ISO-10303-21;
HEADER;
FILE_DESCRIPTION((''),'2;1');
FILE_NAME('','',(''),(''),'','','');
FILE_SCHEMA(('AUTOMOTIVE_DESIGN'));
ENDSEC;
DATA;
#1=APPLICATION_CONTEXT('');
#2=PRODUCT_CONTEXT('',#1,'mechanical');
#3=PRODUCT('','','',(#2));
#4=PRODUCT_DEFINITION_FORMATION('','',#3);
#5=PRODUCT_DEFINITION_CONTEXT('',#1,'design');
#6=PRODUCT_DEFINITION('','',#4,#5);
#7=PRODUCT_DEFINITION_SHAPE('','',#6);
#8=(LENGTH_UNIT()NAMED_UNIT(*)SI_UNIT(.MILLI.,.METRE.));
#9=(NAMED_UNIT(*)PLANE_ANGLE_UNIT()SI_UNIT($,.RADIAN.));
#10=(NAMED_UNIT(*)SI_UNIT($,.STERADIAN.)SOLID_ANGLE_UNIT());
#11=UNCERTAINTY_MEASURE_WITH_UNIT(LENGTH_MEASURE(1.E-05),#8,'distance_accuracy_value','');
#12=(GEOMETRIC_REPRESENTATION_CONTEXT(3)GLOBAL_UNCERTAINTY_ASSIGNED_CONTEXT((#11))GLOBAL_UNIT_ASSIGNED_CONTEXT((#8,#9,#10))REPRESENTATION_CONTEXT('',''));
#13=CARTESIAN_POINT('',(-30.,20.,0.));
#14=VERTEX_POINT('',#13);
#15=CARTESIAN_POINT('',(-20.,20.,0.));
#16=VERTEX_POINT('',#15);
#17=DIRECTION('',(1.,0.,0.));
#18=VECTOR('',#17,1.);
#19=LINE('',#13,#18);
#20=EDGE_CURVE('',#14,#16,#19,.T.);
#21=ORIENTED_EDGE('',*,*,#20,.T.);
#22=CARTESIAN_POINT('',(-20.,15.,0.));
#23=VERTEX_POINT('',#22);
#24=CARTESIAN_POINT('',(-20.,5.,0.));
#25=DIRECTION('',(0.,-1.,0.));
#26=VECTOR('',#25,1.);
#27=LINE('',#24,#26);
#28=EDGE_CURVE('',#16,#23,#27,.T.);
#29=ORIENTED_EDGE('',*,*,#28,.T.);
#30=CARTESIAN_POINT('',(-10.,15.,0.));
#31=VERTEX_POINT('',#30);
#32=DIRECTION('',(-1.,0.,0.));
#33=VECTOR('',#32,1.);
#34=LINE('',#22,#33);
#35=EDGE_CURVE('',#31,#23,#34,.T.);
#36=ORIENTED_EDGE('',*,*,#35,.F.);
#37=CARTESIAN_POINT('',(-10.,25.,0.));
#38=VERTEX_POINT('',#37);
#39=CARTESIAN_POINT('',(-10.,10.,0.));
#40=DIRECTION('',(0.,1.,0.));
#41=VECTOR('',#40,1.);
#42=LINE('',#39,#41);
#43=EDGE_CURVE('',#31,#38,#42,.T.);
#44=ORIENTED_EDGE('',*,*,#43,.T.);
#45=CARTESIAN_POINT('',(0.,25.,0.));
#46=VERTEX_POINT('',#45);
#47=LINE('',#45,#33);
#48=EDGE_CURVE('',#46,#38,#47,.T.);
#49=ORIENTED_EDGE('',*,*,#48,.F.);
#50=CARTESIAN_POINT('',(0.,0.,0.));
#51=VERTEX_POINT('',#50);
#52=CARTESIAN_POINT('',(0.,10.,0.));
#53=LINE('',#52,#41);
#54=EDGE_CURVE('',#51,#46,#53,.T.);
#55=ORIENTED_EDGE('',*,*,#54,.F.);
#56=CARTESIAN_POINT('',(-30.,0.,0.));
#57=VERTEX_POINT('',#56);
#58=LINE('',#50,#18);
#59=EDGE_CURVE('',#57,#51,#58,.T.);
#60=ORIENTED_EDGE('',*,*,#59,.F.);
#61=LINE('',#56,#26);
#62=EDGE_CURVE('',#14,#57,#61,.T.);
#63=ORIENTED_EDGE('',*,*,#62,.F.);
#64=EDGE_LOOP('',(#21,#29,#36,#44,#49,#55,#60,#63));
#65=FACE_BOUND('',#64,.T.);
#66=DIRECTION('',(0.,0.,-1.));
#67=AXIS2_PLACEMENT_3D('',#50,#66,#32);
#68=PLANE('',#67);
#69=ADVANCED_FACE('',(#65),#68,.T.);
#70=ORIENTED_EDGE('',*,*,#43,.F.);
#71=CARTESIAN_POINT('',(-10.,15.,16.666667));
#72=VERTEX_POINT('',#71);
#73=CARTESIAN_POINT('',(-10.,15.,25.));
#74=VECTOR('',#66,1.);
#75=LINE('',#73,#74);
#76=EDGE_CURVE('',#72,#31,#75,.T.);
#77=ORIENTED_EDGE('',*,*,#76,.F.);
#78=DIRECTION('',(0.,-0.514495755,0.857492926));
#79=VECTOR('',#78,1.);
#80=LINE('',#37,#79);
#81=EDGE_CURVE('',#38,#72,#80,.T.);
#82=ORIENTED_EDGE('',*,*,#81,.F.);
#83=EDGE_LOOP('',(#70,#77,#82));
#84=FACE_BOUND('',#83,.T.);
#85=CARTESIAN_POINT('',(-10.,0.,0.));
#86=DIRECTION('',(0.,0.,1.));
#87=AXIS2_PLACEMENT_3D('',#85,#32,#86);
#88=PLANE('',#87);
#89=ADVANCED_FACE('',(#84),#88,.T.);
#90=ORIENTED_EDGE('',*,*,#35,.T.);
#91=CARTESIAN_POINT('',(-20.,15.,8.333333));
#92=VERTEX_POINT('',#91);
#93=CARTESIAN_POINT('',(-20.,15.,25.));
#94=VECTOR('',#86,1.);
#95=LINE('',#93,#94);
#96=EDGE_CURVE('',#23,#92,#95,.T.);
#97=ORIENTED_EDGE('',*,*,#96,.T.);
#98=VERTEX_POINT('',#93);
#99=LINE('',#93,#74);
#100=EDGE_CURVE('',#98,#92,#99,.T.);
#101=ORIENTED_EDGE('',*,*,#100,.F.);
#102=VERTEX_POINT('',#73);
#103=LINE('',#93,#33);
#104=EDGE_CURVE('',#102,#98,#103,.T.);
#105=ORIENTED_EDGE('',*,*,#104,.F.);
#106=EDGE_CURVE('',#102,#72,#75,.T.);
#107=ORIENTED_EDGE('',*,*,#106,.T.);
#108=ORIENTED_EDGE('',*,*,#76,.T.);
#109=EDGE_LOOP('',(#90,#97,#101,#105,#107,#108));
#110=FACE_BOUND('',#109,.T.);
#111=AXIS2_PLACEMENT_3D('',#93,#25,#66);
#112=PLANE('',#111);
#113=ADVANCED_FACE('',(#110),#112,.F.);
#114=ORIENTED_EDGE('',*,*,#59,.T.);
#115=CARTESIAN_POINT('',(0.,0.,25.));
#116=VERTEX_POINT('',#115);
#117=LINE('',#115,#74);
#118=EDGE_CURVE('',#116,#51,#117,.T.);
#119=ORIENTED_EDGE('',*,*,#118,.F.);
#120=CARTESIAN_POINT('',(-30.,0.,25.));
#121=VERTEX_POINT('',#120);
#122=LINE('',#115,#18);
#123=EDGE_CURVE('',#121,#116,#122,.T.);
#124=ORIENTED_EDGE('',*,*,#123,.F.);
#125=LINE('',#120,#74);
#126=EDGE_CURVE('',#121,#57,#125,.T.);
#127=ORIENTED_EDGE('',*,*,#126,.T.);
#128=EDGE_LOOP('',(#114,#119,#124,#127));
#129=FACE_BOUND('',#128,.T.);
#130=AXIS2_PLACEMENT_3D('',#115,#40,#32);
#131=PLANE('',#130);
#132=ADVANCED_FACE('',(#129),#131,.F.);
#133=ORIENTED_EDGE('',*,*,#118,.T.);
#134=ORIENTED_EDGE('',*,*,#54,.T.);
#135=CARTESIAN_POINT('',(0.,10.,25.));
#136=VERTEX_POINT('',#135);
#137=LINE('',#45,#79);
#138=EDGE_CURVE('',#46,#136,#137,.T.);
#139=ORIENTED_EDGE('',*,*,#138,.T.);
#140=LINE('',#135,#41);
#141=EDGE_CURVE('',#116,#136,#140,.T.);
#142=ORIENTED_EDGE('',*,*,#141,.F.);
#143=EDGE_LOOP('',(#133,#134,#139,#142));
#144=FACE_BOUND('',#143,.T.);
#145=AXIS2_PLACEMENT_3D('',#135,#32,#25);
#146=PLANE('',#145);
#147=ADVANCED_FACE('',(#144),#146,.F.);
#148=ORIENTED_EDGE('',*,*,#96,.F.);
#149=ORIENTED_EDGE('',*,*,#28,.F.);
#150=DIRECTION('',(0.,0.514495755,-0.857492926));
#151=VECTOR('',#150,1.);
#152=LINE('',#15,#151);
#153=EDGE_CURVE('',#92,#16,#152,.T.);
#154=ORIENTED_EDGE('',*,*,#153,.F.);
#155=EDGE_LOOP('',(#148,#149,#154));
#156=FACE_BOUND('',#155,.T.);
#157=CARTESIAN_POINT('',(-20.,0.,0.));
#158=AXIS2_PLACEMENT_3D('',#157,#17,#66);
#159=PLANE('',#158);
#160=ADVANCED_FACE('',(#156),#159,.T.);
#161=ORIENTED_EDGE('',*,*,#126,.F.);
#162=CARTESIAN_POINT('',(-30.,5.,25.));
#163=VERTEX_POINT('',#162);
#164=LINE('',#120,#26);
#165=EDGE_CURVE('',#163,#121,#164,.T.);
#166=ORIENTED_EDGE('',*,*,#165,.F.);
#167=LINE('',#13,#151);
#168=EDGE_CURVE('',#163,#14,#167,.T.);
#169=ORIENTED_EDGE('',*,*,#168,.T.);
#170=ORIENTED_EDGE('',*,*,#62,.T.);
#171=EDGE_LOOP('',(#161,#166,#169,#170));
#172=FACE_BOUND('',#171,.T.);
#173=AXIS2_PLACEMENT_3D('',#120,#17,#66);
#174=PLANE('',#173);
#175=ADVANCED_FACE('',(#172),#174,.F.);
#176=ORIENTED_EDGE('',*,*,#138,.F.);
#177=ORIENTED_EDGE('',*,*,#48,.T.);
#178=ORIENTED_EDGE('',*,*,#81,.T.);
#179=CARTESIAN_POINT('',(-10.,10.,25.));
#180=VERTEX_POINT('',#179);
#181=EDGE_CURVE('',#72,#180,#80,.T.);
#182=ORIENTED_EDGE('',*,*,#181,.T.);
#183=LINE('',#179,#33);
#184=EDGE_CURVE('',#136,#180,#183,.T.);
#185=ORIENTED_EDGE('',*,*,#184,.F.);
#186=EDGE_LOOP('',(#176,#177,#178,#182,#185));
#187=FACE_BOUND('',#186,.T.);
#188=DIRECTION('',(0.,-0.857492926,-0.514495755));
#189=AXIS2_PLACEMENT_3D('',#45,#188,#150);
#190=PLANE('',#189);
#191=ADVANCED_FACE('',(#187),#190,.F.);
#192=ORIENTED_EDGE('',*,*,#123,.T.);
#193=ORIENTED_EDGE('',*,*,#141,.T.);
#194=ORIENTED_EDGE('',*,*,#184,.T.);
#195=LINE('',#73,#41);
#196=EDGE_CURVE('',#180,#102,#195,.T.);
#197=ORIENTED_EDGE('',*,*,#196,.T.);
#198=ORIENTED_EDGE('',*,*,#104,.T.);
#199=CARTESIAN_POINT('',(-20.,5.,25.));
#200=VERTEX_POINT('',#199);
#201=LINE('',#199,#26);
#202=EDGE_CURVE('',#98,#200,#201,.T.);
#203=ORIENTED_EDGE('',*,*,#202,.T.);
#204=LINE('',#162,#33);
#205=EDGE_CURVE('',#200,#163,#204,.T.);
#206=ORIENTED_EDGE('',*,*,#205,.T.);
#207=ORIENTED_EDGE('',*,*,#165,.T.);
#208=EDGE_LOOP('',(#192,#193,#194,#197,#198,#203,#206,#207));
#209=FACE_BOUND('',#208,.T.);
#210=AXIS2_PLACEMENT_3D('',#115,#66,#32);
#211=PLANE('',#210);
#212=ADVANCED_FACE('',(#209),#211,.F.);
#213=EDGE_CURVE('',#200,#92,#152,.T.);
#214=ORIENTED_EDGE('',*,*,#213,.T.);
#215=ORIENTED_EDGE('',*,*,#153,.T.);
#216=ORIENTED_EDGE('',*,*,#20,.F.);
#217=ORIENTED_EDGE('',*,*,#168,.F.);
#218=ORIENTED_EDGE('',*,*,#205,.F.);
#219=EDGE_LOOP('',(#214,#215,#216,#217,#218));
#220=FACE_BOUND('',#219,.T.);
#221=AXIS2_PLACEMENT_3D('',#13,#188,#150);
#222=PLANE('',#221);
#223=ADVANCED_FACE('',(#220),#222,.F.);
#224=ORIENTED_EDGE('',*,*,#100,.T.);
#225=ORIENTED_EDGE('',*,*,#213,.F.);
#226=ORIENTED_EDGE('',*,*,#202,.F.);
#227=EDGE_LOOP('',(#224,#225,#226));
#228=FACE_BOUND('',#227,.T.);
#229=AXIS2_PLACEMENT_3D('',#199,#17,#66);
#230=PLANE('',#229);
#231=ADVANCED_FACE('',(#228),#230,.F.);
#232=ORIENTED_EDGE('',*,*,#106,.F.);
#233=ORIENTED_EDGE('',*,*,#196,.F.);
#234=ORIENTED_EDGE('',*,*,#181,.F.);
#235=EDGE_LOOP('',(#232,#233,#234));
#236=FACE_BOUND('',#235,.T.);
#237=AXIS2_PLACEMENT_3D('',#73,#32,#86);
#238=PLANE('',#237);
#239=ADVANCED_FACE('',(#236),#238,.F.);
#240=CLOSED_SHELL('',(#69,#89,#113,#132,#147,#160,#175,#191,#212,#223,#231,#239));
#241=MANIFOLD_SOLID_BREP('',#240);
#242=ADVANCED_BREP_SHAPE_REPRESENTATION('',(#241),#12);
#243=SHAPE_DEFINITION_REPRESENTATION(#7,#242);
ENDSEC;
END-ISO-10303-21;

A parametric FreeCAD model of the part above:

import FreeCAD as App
import Part
import Sketcher
Q = App.Units.Quantity


def add_polygon(sketch, points):
    """Adds a closed chain of lines whose ends are joined by coincident constraints."""
    first, n = sketch.GeometryCount, len(points)
    for a, b in zip(points, points[1:] + points[:1]):
        sketch.addGeometry(Part.LineSegment(App.Vector(*a, 0), App.Vector(*b, 0)), False)
    for i in range(n):
        sketch.addConstraint(Sketcher.Constraint("Coincident", first + i, 2, first + (i + 1) % n, 1))

doc = App.newDocument("Part")
body = doc.addObject("PartDesign::Body", "Body")

# Sketch on XY plane
sketch1 = body.newObject("Sketcher::SketchObject", "Sketch")
sketch1.AttachmentSupport = (doc.getObject("XY_Plane"), [""])
sketch1.MapMode = "FlatFace"
add_polygon(sketch1, [(-20, 5), (-30, 5), (-30, 0), (0, 0), (0, 10), (-10, 10), (-10, 15), (-20, 15)])  # lines 0-7
sketch1.addConstraint([
    Sketcher.Constraint("Horizontal", 0),
    Sketcher.Constraint("Vertical", 1),
    Sketcher.Constraint("Horizontal", 2),
    Sketcher.Constraint("Vertical", 3),
    Sketcher.Constraint("Horizontal", 4),
    Sketcher.Constraint("Vertical", 5),
    Sketcher.Constraint("Horizontal", 6),
    Sketcher.Constraint("Vertical", 7),
    Sketcher.Constraint("Coincident", 2, 2, -1, 1),
    Sketcher.Constraint("Equal", 0, 4),
    Sketcher.Constraint("Equal", 4, 6),
    Sketcher.Constraint("Equal", 6, 3),
    Sketcher.Constraint("Equal", 1, 5),
    Sketcher.Constraint("DistanceX", 0, 2, 0, 1, Q("10 mm")),
    Sketcher.Constraint("DistanceY", 1, 2, 1, 1, Q("5 mm")),
])
pad1 = body.newObject("PartDesign::Pad", "Pad")
pad1.Profile = sketch1
pad1.Length = 25

# Sketch on YZ plane
sketch2 = body.newObject("Sketcher::SketchObject", "Sketch001")
sketch2.AttachmentSupport = (doc.getObject("YZ_Plane"), [""])
sketch2.MapMode = "FlatFace"
sketch2.AttachmentOffset = App.Placement(App.Vector(0, 0, -10), App.Rotation())
add_polygon(sketch2, [(10, 25), (10, 0), (25, 0)])  # lines 0-2
sketch2.addConstraint([
    Sketcher.Constraint("Vertical", 0),
    Sketcher.Constraint("Horizontal", 1),
    Sketcher.Constraint("PointOnObject", 0, 2, -1),
    Sketcher.Constraint("DistanceX", 1, 1, 1, 2, Q("15 mm")),
    Sketcher.Constraint("DistanceY", 0, 2, 0, 1, Q("25 mm")),
    Sketcher.Constraint("DistanceX", -1, 1, 0, 2, Q("10 mm")),
])
pad2 = body.newObject("PartDesign::Pad", "Pad001")
pad2.Profile = sketch2
pad2.Length = 10

# Sketch on YZ plane
sketch3 = body.newObject("Sketcher::SketchObject", "Sketch002")
sketch3.AttachmentSupport = (doc.getObject("YZ_Plane"), [""])
sketch3.MapMode = "FlatFace"
sketch3.AttachmentOffset = App.Placement(App.Vector(0, 0, -20), App.Rotation())
add_polygon(sketch3, [(20, 0), (5, 0), (5, 25)])  # lines 0-2
sketch3.addConstraint([
    Sketcher.Constraint("Horizontal", 0),
    Sketcher.Constraint("Vertical", 1),
    Sketcher.Constraint("PointOnObject", 0, 2, -1),
    Sketcher.Constraint("DistanceX", 0, 2, 0, 1, Q("15 mm")),
    Sketcher.Constraint("DistanceY", 1, 1, 1, 2, Q("25 mm")),
    Sketcher.Constraint("DistanceX", -1, 1, 0, 2, Q("5 mm")),
])
pad3 = body.newObject("PartDesign::Pad", "Pad002")
pad3.Profile = sketch3
pad3.Length = 10
pad3.Reversed = True

doc.recompute()
